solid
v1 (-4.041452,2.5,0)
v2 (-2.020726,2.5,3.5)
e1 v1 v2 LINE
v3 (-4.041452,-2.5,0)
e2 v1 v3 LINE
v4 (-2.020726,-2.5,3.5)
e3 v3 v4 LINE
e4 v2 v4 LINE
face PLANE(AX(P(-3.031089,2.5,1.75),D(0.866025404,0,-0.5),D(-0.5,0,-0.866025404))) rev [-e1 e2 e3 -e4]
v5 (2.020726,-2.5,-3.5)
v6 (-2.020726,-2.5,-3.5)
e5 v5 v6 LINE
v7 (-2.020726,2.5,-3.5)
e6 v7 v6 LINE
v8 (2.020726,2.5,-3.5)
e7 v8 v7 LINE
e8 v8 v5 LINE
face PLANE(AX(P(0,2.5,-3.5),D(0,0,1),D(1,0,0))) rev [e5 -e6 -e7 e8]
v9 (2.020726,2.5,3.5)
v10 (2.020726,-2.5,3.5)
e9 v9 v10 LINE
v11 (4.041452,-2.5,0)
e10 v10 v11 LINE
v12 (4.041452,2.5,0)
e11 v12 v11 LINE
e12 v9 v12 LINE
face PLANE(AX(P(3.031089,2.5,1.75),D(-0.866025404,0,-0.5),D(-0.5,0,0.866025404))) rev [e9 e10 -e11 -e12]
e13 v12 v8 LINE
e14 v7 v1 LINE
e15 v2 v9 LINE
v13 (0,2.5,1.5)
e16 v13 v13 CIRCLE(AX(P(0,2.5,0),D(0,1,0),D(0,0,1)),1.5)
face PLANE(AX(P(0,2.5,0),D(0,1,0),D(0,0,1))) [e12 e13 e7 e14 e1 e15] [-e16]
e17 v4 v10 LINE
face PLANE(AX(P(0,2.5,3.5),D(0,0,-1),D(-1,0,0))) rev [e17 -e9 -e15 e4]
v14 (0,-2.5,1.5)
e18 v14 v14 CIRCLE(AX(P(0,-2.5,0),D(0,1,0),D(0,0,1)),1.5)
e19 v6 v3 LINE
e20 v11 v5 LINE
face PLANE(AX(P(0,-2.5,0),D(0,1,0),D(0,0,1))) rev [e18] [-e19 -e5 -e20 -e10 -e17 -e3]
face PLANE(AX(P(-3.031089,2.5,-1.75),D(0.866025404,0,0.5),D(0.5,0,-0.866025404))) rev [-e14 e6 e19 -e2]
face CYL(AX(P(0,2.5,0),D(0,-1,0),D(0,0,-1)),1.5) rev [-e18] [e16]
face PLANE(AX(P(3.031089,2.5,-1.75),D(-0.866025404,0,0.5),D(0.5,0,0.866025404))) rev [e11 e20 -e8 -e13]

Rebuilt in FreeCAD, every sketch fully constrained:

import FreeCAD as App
import Part
import Sketcher
from FreeCAD import Vector
Q = App.Units.Quantity


def add_polygon(sketch, points):
    """Adds a closed chain of lines whose ends are joined by coincident constraints."""
    first, n = sketch.GeometryCount, len(points)
    for a, b in zip(points, points[1:] + points[:1]):
        sketch.addGeometry(Part.LineSegment(App.Vector(*a, 0), App.Vector(*b, 0)), False)
    for i in range(n):
        sketch.addConstraint(Sketcher.Constraint("Coincident", first + i, 2, first + (i + 1) % n, 1))

doc = App.newDocument("Part")
body = doc.addObject("PartDesign::Body", "Body")

# Sketch on XZ plane
sketch1 = body.newObject("Sketcher::SketchObject", "Sketch")
sketch1.AttachmentSupport = (doc.getObject("XZ_Plane"), [""])
sketch1.MapMode = "FlatFace"
add_polygon(sketch1, [(-2.020726, 3.5), (2.020726, 3.5), (4.041452, 0), (2.020726, -3.5), (-2.020726, -3.5), (-4.041452, 0)])  # lines 0-5
sketch1.addGeometry(Part.Circle(Vector(0, 0, 0), Vector(0, 0, 1), 1.5), False)  # 6
sketch1.addConstraint(Sketcher.Constraint("Horizontal", 0))
sketch1.addConstraint(Sketcher.Constraint("Horizontal", 3))
sketch1.addConstraint(Sketcher.Constraint("Coincident", 6, 3, -1, 1))
sketch1.addConstraint(Sketcher.Constraint("Symmetric", 0, 2, 3, 2, -1, 1))
sketch1.addConstraint(Sketcher.Constraint("Symmetric", 1, 2, 4, 2, -1, 1))
sketch1.addConstraint(Sketcher.Constraint("PointOnObject", 1, 2, -1))
sketch1.addConstraint(Sketcher.Constraint("Parallel", 2, 5))
sketch1.addConstraint(Sketcher.Constraint("Vertical", 0, 2, 2, 2))
sketch1.addConstraint(Sketcher.Constraint("Diameter", 6, Q("3 mm")))
sketch1.addConstraint(Sketcher.Constraint("Angle", 1, Q("-60 deg")))
sketch1.addConstraint(Sketcher.Constraint("DistanceY", 2, 2, 0, 2, Q("7 mm")))
sketch1.addConstraint(Sketcher.Constraint("DistanceX", 0, 1, 0, 2, Q("4.041452 mm")))
pad1 = body.newObject("PartDesign::Pad", "Pad")
pad1.Profile = sketch1
pad1.Length = 5
pad1.Midplane = True

doc.recompute()
